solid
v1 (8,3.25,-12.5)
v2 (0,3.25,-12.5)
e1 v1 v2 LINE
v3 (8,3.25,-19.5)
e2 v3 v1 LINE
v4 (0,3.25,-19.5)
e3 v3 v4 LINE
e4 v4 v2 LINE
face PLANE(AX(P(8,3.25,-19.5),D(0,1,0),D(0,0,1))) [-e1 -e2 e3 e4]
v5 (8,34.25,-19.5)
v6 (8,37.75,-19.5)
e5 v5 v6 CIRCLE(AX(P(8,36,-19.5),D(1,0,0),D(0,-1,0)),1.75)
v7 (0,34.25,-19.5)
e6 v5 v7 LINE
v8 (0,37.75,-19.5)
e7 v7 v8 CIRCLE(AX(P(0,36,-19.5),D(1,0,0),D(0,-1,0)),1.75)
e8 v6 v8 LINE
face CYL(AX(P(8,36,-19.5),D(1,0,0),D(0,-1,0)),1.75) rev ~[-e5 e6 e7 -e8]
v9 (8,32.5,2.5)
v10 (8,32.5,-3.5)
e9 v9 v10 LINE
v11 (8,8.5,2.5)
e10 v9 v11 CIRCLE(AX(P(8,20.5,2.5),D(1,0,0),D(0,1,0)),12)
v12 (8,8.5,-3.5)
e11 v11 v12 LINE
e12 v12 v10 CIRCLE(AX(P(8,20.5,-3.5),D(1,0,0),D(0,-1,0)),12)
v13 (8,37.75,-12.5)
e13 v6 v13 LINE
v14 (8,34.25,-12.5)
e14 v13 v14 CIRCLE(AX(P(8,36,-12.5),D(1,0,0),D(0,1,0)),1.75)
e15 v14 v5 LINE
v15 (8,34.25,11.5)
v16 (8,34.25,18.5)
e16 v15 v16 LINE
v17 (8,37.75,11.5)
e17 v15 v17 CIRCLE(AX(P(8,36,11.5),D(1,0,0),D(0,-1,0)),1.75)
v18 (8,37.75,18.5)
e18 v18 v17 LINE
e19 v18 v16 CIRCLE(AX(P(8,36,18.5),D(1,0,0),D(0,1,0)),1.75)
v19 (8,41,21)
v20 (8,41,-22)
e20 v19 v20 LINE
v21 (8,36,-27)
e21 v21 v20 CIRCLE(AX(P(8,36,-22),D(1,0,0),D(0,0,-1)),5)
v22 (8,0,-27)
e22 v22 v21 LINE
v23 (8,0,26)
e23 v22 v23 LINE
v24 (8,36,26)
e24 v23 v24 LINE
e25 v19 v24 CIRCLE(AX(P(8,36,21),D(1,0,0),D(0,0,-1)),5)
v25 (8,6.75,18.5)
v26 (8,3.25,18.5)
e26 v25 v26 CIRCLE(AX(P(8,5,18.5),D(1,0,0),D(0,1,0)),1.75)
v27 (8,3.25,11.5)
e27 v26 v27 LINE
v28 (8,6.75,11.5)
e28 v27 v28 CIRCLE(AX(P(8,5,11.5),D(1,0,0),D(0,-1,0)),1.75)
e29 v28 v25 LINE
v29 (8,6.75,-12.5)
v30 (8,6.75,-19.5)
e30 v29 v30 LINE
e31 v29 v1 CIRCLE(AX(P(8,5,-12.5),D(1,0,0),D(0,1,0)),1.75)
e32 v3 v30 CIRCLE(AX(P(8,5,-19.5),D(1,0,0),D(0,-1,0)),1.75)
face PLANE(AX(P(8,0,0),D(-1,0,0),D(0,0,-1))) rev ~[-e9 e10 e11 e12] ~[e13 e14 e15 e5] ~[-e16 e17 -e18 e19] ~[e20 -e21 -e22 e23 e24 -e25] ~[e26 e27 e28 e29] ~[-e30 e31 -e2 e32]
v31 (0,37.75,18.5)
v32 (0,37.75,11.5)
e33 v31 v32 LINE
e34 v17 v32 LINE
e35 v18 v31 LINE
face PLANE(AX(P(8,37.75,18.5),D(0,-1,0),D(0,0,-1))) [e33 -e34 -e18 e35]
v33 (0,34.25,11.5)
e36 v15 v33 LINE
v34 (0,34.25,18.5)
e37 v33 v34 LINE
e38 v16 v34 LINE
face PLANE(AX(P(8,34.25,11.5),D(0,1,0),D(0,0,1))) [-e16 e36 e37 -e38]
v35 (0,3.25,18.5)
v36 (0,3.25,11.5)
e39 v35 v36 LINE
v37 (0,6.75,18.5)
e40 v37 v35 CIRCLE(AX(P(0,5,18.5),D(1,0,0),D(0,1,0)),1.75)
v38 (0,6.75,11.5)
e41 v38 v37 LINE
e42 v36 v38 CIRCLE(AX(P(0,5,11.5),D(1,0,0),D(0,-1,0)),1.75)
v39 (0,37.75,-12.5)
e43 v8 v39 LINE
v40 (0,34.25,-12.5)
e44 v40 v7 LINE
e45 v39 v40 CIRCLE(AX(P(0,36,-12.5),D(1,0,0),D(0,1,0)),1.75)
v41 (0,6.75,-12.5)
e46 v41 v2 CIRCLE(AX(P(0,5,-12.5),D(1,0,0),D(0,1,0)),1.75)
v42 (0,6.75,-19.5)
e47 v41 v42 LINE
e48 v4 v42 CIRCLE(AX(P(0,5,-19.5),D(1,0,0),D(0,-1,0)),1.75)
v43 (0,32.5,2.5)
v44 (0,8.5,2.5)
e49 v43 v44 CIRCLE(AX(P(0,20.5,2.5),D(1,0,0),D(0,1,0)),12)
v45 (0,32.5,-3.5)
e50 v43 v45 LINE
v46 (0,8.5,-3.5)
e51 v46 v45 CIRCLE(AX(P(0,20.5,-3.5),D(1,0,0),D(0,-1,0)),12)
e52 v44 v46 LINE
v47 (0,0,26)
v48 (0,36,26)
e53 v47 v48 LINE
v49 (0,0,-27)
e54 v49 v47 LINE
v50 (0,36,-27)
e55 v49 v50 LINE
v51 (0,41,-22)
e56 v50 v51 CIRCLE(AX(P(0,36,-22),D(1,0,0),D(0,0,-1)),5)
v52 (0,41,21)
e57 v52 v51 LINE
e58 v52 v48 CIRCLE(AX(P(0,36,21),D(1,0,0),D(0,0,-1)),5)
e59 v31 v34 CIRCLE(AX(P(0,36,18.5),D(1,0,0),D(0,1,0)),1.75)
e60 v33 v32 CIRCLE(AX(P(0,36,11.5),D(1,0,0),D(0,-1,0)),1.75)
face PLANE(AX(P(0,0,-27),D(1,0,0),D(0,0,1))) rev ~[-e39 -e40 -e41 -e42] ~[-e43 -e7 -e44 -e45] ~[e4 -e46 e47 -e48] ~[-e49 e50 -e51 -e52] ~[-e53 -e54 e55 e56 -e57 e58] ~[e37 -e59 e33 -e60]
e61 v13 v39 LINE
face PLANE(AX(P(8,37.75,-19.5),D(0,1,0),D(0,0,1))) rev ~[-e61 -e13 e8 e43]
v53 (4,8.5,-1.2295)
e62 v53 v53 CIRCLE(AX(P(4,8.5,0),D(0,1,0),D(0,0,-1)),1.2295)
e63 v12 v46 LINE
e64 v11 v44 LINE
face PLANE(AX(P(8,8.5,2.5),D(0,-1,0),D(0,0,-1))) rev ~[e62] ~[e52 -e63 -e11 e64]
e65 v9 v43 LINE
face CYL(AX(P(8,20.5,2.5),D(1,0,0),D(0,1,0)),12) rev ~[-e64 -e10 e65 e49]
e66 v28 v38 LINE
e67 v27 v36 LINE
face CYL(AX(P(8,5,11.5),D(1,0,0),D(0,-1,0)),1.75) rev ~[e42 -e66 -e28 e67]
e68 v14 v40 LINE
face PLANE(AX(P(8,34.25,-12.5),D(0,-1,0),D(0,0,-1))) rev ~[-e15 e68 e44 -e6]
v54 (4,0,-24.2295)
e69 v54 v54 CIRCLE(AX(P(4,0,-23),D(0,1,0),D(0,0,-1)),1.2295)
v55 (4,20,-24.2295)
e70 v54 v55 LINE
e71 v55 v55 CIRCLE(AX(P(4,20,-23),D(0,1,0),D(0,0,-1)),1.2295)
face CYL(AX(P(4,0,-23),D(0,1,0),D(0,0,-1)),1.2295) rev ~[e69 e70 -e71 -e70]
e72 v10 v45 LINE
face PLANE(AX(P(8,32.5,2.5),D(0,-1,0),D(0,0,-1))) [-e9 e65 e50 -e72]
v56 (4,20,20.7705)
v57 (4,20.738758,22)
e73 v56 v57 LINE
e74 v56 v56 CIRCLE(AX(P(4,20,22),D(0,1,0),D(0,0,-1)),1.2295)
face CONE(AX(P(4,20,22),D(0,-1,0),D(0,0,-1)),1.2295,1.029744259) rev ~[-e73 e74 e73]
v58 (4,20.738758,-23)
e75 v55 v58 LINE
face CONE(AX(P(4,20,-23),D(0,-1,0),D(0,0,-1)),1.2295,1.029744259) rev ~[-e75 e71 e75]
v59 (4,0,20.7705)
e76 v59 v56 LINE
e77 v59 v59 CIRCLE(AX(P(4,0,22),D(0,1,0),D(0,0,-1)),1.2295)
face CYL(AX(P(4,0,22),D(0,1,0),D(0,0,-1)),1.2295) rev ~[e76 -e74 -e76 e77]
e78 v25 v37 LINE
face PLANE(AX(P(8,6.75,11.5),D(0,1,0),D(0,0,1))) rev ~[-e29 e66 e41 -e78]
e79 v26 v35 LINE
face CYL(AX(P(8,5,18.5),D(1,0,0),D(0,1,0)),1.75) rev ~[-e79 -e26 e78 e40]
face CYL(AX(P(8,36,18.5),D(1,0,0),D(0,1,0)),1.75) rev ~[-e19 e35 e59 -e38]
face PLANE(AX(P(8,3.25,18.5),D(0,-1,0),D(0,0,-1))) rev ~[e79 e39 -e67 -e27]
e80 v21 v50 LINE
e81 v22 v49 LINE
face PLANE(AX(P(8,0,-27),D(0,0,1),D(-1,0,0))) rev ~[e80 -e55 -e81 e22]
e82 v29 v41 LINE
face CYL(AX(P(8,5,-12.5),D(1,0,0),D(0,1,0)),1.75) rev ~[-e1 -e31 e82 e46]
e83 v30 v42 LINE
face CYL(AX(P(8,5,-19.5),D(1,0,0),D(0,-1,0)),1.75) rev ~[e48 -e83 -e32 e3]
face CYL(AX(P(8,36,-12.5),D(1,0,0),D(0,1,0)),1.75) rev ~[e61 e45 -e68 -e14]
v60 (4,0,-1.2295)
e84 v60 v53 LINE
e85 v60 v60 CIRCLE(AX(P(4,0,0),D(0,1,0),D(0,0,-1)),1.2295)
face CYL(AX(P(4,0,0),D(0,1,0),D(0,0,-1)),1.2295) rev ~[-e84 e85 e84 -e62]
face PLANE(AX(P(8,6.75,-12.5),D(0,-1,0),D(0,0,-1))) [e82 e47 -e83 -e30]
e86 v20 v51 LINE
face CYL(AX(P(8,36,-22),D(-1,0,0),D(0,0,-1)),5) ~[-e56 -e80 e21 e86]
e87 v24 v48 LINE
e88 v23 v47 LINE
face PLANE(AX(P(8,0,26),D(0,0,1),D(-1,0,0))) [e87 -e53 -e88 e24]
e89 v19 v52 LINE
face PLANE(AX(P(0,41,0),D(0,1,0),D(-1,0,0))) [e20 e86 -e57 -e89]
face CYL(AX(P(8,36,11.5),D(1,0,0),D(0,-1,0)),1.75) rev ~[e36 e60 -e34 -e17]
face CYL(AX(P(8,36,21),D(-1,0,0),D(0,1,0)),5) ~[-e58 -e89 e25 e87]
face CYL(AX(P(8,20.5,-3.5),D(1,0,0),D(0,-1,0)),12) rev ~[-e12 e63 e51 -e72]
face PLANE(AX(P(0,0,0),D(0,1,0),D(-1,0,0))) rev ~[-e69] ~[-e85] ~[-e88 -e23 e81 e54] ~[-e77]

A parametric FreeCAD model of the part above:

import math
import FreeCAD as App
import Part
import Sketcher

V = App.Vector


def edges_at(feature, points):
    """Names of the edges that pass closest to the given points."""
    edges = feature.Shape.Edges
    near = lambda p: min(range(len(edges)), key=lambda i: edges[i].distToShape(Part.Vertex(*p))[0])
    return sorted({f"Edge{near(p) + 1}" for p in points})


def add_polygon(sketch, points):
    """Adds a closed chain of lines whose ends are joined by coincident constraints."""
    first, n = sketch.GeometryCount, len(points)
    for a, b in zip(points, points[1:] + points[:1]):
        sketch.addGeometry(Part.LineSegment(App.Vector(*a, 0), App.Vector(*b, 0)), False)
    for i in range(n):
        sketch.addConstraint(Sketcher.Constraint("Coincident", first + i, 2, first + (i + 1) % n, 1))

doc = App.newDocument("Part")
params = doc.addObject("Spreadsheet::Sheet", "Params")
for row, (alias, value) in enumerate([
    ("sketch1_width", "8 mm"),
    ("pad1_length", "41 mm"),
    ("sketch2_radius", "12 mm"),
    ("sketch2_radius2", "1.75 mm"),
    ("sketch2_height", "6 mm"),
    ("sketch2_height2", "7 mm"),
    ("pocket1_length", "10 mm"),
    ("fillet_radius", "5 mm"),
    ("hole_diameter", "2.459 mm"),
    ("hole_depth", "20 mm"),
], start=1):
    params.set(f"A{row}", alias)
    params.set(f"B{row}", "=" + value)
    params.setAlias(f"B{row}", alias)

body = doc.addObject("PartDesign::Body", "Body")

sketch1 = body.newObject("Sketcher::SketchObject", "Sketch")
sketch1.AttachmentSupport = (doc.getObject("XZ_Plane"), [""])
sketch1.MapMode = "FlatFace"
add_polygon(sketch1, [(0, -27), (0, 26), (8, 26), (8, -27)])
sketch1.addConstraint([
    Sketcher.Constraint("Vertical", 0),
    Sketcher.Constraint("Horizontal", 1),
    Sketcher.Constraint("Vertical", 2),
    Sketcher.Constraint("Horizontal", 3),
    Sketcher.Constraint("PointOnObject", 0, 2, -2),
    Sketcher.Constraint("DistanceX", 1, 1, 1, 2, 8.0),
    Sketcher.Constraint("DistanceY", -1, 1, 0, 2, 26.0),
    Sketcher.Constraint("DistanceY", 2, 2, -1, 1, 27.0),
])
sketch1.setExpression("Constraints[9]", "Params.sketch1_width")
pad1 = body.newObject("PartDesign::Pad", "Pad")
pad1.Profile = sketch1
pad1.setExpression("Length", "Params.pad1_length")
pad1.Reversed = True

sketch2 = body.newObject("Sketcher::SketchObject", "Sketch001")
sketch2.AttachmentSupport = (doc.getObject("YZ_Plane"), [""])
sketch2.MapMode = "FlatFace"
sketch2.AttachmentOffset = App.Placement(V(0, 0, 8), App.Rotation())
sketch2.addGeometry([
    Part.LineSegment(V(32.5, -3.5, 0), V(32.5, 2.5, 0)),
    Part.ArcOfCircle(Part.Circle(V(20.5, 2.5, 0), V(0, 0, 1), 12), math.radians(0), math.radians(180)),
    Part.LineSegment(V(8.5, 2.5, 0), V(8.5, -3.5, 0)),
    Part.ArcOfCircle(Part.Circle(V(20.5, -3.5, 0), V(0, 0, 1), 12), math.radians(180), math.radians(360)),
    Part.LineSegment(V(34.25, 18.5, 0), V(34.25, 11.5, 0)),
    Part.ArcOfCircle(Part.Circle(V(36, 11.5, 0), V(0, 0, 1), 1.75), math.radians(180), math.radians(360)),
    Part.LineSegment(V(37.75, 11.5, 0), V(37.75, 18.5, 0)),
    Part.ArcOfCircle(Part.Circle(V(36, 18.5, 0), V(0, 0, 1), 1.75), math.radians(0), math.radians(180)),
    Part.LineSegment(V(3.25, 18.5, 0), V(3.25, 11.5, 0)),
    Part.ArcOfCircle(Part.Circle(V(5, 11.5, 0), V(0, 0, 1), 1.75), math.radians(180), math.radians(360)),
    Part.LineSegment(V(6.75, 11.5, 0), V(6.75, 18.5, 0)),
    Part.ArcOfCircle(Part.Circle(V(5, 18.5, 0), V(0, 0, 1), 1.75), math.radians(0), math.radians(180)),
    Part.LineSegment(V(37.75, -19.5, 0), V(37.75, -12.5, 0)),
    Part.ArcOfCircle(Part.Circle(V(36, -12.5, 0), V(0, 0, 1), 1.75), math.radians(0), math.radians(180)),
    Part.LineSegment(V(34.25, -12.5, 0), V(34.25, -19.5, 0)),
    Part.ArcOfCircle(Part.Circle(V(36, -19.5, 0), V(0, 0, 1), 1.75), math.radians(180), math.radians(360)),
    Part.LineSegment(V(6.75, -19.5, 0), V(6.75, -12.5, 0)),
    Part.ArcOfCircle(Part.Circle(V(5, -12.5, 0), V(0, 0, 1), 1.75), math.radians(0), math.radians(180)),
    Part.LineSegment(V(3.25, -12.5, 0), V(3.25, -19.5, 0)),
    Part.ArcOfCircle(Part.Circle(V(5, -19.5, 0), V(0, 0, 1), 1.75), math.radians(180), math.radians(360)),
], False)
sketch2.addConstraint([
    Sketcher.Constraint("Tangent", 0, 2, 1, 1),
    Sketcher.Constraint("Tangent", 1, 2, 2, 1),
    Sketcher.Constraint("Tangent", 2, 2, 3, 1),
    Sketcher.Constraint("Tangent", 3, 2, 0, 1),
    Sketcher.Constraint("Tangent", 4, 2, 5, 1),
    Sketcher.Constraint("Tangent", 5, 2, 6, 1),
    Sketcher.Constraint("Tangent", 6, 2, 7, 1),
    Sketcher.Constraint("Tangent", 7, 2, 4, 1),
    Sketcher.Constraint("Tangent", 8, 2, 9, 1),
    Sketcher.Constraint("Tangent", 9, 2, 10, 1),
    Sketcher.Constraint("Tangent", 10, 2, 11, 1),
    Sketcher.Constraint("Tangent", 11, 2, 8, 1),
    Sketcher.Constraint("Tangent", 12, 2, 13, 1),
    Sketcher.Constraint("Tangent", 13, 2, 14, 1),
    Sketcher.Constraint("Tangent", 14, 2, 15, 1),
    Sketcher.Constraint("Tangent", 15, 2, 12, 1),
    Sketcher.Constraint("Tangent", 16, 2, 17, 1),
    Sketcher.Constraint("Tangent", 17, 2, 18, 1),
    Sketcher.Constraint("Tangent", 18, 2, 19, 1),
    Sketcher.Constraint("Tangent", 19, 2, 16, 1),
    Sketcher.Constraint("Vertical", 0),
    Sketcher.Constraint("Vertical", 2),
    Sketcher.Constraint("Vertical", 4),
    Sketcher.Constraint("Vertical", 6),
    Sketcher.Constraint("Vertical", 8),
    Sketcher.Constraint("Vertical", 10),
    Sketcher.Constraint("Vertical", 12),
    Sketcher.Constraint("Vertical", 14),
    Sketcher.Constraint("Vertical", 16),
    Sketcher.Constraint("Vertical", 18),
    Sketcher.Constraint("Equal", 7, 9),
    Sketcher.Constraint("Equal", 11, 13),
    Sketcher.Constraint("Equal", 15, 17),
    Sketcher.Constraint("Horizontal", 5, 3, 9, 3),
    Sketcher.Constraint("Horizontal", 7, 3, 11, 3),
    Sketcher.Constraint("Horizontal", 13, 3, 17, 3),
    Sketcher.Constraint("Horizontal", 15, 3, 19, 3),
    Sketcher.Constraint("Vertical", 7, 3, 13, 3),
    Sketcher.Constraint("Vertical", 11, 3, 17, 3),
    Sketcher.Constraint("Equal", 10, 12),
    Sketcher.Constraint("Radius", 1, 12.0),
    Sketcher.Constraint("Radius", 5, 1.75),
    Sketcher.Constraint("DistanceY", 3, 3, -1, 1, 3.5),
    Sketcher.Constraint("DistanceX", 0, 2, 5, 3, 3.5),
    Sketcher.Constraint("DistanceX", 9, 3, 1, 2, 3.5),
    Sketcher.Constraint("DistanceY", 0, 1, 0, 2, 6.0),
    Sketcher.Constraint("DistanceY", 4, 2, 4, 1, 7.0),
    Sketcher.Constraint("DistanceX", -1, 1, 5, 3, 36.0),
    Sketcher.Constraint("DistanceY", 1, 3, 5, 3, 9.0),
    Sketcher.Constraint("DistanceY", 13, 3, 3, 3, 9.0),
])
sketch2.setExpression("Constraints[40]", "Params.sketch2_radius")
sketch2.setExpression("Constraints[41]", "Params.sketch2_radius2")
sketch2.setExpression("Constraints[45]", "Params.sketch2_height")
sketch2.setExpression("Constraints[46]", "Params.sketch2_height2")
pocket1 = body.newObject("PartDesign::Pocket", "Pocket")
pocket1.Profile = sketch2
pocket1.setExpression("Length", "Params.pocket1_length")
doc.recompute()

fillet = body.newObject("PartDesign::Fillet", "Fillet")
fillet.Base = (pocket1, edges_at(pocket1, [(4, 41, 26), (4, 41, -27)]))
fillet.setExpression("Radius", "Params.fillet_radius")

sketch3 = body.newObject("Sketcher::SketchObject", "Sketch002")
sketch3.AttachmentSupport = (doc.getObject("XZ_Plane"), [""])
sketch3.MapMode = "FlatFace"
sketch3.addGeometry([
    Part.Circle(V(4, 22, 0), V(0, 0, 1), 1.2295),
    Part.Circle(V(4, 0, 0), V(0, 0, 1), 1.2295),
    Part.Circle(V(4, -23, 0), V(0, 0, 1), 1.2295),
], False)
sketch3.addConstraint([
    Sketcher.Constraint("Equal", 0, 1),
    Sketcher.Constraint("Equal", 1, 2),
    Sketcher.Constraint("PointOnObject", 1, 3, -1),
    Sketcher.Constraint("Vertical", 0, 3, 1, 3),
    Sketcher.Constraint("Vertical", 1, 3, 2, 3),
    Sketcher.Constraint("Diameter", 0, 2.459),
    Sketcher.Constraint("DistanceX", -1, 1, 0, 3, 4.0),
    Sketcher.Constraint("DistanceY", -1, 1, 0, 3, 22.0),
    Sketcher.Constraint("DistanceY", 2, 3, -1, 1, 23.0),
])
doc.recompute()
hole = body.newObject("PartDesign::Hole", "Hole")
hole.Profile = sketch3
hole.ThreadType = "None"
hole.setExpression("Diameter", "Params.hole_diameter")
hole.DepthType = "Dimension"
hole.setExpression("Depth", "Params.hole_depth")
hole.DrillPoint = "Angled"
hole.DrillPointAngle = 118

doc.recompute()
